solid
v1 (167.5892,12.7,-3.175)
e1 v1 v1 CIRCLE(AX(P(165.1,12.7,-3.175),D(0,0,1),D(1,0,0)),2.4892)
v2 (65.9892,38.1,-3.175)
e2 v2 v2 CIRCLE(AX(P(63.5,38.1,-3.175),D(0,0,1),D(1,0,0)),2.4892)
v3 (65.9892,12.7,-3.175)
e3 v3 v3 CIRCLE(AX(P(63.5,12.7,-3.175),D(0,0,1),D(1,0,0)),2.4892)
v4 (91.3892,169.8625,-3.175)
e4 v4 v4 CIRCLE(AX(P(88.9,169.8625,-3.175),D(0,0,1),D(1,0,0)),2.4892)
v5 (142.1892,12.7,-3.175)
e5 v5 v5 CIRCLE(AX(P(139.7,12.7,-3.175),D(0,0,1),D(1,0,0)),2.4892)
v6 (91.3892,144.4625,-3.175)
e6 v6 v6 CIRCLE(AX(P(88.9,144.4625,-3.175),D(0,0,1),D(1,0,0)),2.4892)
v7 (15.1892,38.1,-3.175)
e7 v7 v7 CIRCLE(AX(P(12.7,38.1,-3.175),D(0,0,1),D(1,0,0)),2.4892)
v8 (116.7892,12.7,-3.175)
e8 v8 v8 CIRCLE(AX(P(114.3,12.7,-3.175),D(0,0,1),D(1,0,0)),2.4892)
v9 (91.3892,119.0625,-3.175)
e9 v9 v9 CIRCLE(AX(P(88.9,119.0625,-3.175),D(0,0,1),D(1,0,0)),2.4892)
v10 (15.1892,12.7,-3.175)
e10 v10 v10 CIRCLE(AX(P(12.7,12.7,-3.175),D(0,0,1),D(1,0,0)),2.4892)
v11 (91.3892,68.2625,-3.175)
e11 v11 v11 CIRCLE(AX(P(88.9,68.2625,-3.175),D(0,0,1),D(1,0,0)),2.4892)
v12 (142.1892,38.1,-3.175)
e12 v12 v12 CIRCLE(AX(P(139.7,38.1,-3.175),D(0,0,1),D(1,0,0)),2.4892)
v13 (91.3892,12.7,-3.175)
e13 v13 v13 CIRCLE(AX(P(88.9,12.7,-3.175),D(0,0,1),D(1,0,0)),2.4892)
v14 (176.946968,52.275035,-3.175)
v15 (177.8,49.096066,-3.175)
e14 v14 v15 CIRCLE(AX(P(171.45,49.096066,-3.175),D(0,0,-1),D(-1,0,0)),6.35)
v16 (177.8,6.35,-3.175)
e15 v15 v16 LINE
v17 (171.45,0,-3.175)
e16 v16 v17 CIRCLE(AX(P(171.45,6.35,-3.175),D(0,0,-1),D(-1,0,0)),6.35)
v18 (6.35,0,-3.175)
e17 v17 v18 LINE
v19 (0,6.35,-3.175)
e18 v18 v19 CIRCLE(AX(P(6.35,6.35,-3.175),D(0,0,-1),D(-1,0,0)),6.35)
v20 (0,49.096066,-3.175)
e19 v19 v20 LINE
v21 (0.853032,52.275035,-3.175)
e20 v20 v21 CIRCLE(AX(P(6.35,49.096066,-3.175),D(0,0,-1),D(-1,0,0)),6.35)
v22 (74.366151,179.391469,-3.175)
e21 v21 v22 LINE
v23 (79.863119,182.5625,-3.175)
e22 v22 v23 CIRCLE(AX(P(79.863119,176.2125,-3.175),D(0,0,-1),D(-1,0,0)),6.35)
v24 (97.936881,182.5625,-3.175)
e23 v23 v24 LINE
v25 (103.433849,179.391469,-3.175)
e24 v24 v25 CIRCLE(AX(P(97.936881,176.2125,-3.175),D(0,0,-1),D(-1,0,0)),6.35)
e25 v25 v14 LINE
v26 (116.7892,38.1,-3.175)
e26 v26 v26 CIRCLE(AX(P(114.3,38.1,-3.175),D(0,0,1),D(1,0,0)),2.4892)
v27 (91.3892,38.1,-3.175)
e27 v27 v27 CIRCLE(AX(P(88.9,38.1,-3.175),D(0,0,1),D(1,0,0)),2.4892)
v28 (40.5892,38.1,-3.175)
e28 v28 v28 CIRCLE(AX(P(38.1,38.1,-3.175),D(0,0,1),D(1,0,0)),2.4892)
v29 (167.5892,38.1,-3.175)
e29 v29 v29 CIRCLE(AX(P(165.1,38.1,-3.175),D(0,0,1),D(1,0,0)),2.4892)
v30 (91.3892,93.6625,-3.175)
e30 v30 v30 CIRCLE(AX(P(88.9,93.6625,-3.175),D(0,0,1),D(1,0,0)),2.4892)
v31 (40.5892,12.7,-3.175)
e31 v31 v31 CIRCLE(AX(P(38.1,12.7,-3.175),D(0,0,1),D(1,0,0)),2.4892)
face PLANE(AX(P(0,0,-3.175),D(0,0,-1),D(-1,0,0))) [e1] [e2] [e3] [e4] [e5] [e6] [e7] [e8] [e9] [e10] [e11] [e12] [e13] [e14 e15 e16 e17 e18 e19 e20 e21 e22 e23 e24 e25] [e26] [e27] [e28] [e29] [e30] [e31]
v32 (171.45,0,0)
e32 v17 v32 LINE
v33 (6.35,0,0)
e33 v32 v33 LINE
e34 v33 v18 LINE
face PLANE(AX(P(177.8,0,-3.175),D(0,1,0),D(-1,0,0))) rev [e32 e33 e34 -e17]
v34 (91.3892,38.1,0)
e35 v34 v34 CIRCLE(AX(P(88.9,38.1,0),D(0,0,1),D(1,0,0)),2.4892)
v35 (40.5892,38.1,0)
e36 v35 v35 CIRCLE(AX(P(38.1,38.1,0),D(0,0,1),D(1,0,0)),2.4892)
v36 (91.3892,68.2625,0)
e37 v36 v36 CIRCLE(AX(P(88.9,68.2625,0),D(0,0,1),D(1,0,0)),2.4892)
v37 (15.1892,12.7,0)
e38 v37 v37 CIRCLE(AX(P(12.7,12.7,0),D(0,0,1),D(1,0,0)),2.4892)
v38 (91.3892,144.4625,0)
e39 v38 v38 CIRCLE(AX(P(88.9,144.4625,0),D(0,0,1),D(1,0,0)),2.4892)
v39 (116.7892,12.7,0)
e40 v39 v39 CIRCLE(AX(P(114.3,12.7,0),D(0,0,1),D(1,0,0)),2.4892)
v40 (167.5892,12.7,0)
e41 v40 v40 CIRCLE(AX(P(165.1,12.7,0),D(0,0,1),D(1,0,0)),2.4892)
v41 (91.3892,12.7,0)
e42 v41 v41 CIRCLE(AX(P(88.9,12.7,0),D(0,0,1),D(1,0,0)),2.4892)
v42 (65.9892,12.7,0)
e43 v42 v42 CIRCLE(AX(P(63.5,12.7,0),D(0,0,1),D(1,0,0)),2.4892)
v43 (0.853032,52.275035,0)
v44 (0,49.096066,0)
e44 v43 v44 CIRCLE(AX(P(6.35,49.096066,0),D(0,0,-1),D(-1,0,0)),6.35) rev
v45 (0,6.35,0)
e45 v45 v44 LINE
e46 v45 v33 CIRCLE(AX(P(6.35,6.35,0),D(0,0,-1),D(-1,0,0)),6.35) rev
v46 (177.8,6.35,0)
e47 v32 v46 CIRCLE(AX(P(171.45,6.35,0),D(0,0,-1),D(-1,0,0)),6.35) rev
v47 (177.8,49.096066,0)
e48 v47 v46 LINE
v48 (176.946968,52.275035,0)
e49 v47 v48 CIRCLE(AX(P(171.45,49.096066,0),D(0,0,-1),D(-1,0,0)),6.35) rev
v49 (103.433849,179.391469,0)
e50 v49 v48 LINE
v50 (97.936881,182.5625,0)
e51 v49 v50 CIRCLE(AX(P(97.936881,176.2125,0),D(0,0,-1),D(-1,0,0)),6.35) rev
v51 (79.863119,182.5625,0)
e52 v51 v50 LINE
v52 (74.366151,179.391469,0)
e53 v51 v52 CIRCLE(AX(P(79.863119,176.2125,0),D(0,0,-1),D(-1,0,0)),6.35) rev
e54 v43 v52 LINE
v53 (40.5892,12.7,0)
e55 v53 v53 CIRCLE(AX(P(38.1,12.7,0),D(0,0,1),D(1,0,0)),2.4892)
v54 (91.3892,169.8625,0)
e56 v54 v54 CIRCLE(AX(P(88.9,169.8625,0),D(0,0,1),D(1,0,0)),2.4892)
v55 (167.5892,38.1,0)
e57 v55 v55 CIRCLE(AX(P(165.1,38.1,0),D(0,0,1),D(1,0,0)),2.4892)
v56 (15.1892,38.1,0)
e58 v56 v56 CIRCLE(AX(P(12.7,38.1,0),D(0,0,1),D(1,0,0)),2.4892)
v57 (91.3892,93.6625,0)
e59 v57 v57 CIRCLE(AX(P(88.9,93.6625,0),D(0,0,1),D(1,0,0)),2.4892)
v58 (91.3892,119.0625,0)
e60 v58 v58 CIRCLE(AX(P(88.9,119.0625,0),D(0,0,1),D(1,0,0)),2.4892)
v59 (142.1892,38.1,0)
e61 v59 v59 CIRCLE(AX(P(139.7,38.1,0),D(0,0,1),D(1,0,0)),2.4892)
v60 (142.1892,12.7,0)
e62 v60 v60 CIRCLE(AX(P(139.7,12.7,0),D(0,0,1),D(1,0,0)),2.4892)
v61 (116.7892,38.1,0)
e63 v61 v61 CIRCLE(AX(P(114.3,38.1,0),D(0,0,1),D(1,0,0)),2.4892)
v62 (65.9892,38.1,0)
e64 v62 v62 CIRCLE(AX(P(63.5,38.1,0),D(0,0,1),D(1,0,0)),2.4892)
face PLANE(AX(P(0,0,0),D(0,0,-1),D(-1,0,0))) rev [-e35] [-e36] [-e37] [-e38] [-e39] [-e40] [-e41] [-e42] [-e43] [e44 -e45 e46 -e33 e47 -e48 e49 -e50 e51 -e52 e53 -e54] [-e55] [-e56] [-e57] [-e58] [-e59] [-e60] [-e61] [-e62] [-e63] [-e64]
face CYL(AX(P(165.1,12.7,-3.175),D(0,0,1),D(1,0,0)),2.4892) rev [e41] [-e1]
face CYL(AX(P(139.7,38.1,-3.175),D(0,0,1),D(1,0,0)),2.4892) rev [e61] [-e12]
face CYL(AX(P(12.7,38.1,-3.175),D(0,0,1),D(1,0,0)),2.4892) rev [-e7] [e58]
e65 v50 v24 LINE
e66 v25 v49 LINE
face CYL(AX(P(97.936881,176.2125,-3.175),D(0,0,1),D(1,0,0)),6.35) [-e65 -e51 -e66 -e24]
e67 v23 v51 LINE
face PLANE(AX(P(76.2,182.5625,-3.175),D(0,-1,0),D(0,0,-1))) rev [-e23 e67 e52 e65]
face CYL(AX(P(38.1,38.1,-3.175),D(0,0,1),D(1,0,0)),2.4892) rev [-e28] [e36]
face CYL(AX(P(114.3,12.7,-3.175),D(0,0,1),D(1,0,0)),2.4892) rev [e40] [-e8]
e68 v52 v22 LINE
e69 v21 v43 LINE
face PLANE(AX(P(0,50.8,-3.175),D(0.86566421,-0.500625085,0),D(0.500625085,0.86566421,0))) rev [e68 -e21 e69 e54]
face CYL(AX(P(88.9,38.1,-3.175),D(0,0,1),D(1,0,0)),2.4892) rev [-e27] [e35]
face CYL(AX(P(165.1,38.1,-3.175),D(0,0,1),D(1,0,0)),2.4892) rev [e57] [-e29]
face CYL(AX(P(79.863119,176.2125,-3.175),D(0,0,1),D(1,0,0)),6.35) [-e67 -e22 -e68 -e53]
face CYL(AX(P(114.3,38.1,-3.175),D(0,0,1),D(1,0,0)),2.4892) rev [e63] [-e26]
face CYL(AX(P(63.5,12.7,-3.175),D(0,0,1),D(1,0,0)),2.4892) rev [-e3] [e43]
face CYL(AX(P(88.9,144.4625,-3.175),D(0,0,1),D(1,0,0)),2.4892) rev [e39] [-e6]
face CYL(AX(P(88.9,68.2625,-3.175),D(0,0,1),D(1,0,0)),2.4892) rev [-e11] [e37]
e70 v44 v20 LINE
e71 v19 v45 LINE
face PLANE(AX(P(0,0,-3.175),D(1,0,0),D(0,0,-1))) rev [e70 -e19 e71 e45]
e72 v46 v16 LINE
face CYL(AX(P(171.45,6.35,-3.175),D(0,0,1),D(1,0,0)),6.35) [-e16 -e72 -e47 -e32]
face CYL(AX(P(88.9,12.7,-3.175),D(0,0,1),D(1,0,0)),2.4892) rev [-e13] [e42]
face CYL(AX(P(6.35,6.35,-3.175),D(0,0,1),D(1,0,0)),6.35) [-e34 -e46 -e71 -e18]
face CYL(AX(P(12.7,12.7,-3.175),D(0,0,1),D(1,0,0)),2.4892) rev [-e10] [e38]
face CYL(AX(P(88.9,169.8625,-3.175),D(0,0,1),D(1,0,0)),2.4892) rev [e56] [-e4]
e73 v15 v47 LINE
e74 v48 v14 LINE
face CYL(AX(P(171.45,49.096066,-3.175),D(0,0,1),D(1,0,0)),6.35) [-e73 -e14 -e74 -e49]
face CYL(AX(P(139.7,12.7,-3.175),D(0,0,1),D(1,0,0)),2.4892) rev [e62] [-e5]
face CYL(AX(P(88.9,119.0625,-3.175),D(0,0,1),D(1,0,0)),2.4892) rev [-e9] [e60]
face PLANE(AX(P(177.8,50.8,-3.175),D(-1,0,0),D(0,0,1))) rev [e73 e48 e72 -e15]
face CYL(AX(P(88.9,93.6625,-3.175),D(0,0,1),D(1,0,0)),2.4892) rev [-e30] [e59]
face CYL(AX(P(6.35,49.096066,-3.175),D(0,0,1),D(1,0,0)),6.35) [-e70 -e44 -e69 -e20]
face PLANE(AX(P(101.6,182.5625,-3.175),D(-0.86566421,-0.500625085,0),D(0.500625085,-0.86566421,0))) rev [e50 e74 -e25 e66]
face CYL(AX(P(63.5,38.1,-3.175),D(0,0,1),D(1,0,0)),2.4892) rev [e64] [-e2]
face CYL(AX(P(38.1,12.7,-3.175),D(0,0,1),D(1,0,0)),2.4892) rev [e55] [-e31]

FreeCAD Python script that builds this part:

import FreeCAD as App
import Part
import Sketcher
Q = App.Units.Quantity


def edges_at(feature, points):
    """Names of the edges that pass closest to the given points."""
    edges = feature.Shape.Edges
    near = lambda p: min(range(len(edges)), key=lambda i: edges[i].distToShape(Part.Vertex(*p))[0])
    return sorted({f"Edge{near(p) + 1}" for p in points})


def add_polygon(sketch, points):
    """Adds a closed chain of lines whose ends are joined by coincident constraints."""
    first, n = sketch.GeometryCount, len(points)
    for a, b in zip(points, points[1:] + points[:1]):
        sketch.addGeometry(Part.LineSegment(App.Vector(*a, 0), App.Vector(*b, 0)), False)
    for i in range(n):
        sketch.addConstraint(Sketcher.Constraint("Coincident", first + i, 2, first + (i + 1) % n, 1))

doc = App.newDocument("Part")
body = doc.addObject("PartDesign::Body", "Body")

# Sketch on XY plane
sketch1 = body.newObject("Sketcher::SketchObject", "Sketch")
sketch1.AttachmentSupport = (doc.getObject("XY_Plane"), [""])
sketch1.MapMode = "FlatFace"
add_polygon(sketch1, [(0, 51), (0, 0), (178, 0), (178, 51), (102, 183), (76, 183)])  # lines 0-5
sketch1.addConstraint([
    Sketcher.Constraint("Vertical", 0),
    Sketcher.Constraint("Horizontal", 1),
    Sketcher.Constraint("Vertical", 2),
    Sketcher.Constraint("Horizontal", 4),
    Sketcher.Constraint("Coincident", 0, 2, -1, 1),
    Sketcher.Constraint("Horizontal", 2, 2, 5, 2),
    Sketcher.Constraint("Equal", 3, 5),
    Sketcher.Constraint("DistanceX", 1, 1, 1, 2, Q("7 in")),
    Sketcher.Constraint("DistanceX", 4, 2, 4, 1, Q("1 in")),
    Sketcher.Constraint("DistanceY", 0, 2, 0, 1, Q("2 in")),
    Sketcher.Constraint("DistanceY", -1, 1, 3, 2, Q("7.1875 in")),
])
pad1 = body.newObject("PartDesign::Pad", "Pad")
pad1.Profile = sketch1
pad1.Length = Q("0.125 in")
pad1.Reversed = True

# Sketch on XY plane
sketch2 = body.newObject("Sketcher::SketchObject", "Sketch001")
sketch2.AttachmentSupport = (doc.getObject("XY_Plane"), [""])
sketch2.MapMode = "FlatFace"
sketch2.addGeometry([
    Part.Circle(App.Vector(12.7, 12.7, 0), App.Vector(0, 0, 1), 2.5),  # 0
    Part.Circle(App.Vector(38.1, 12.7, 0), App.Vector(0, 0, 1), 2.5),  # 1
    Part.Circle(App.Vector(63.5, 12.7, 0), App.Vector(0, 0, 1), 2.5),  # 2
    Part.Circle(App.Vector(88.9, 12.7, 0), App.Vector(0, 0, 1), 2.5),  # 3
    Part.Circle(App.Vector(114.3, 12.7, 0), App.Vector(0, 0, 1), 2.5),  # 4
    Part.Circle(App.Vector(139.7, 12.7, 0), App.Vector(0, 0, 1), 2.5),  # 5
    Part.Circle(App.Vector(165.1, 12.7, 0), App.Vector(0, 0, 1), 2.5),  # 6
    Part.Circle(App.Vector(38.1, 38.1, 0), App.Vector(0, 0, 1), 2.5),  # 7
    Part.Circle(App.Vector(63.5, 38.1, 0), App.Vector(0, 0, 1), 2.5),  # 8
    Part.Circle(App.Vector(88.9, 38.1, 0), App.Vector(0, 0, 1), 2.5),  # 9
    Part.Circle(App.Vector(114.3, 38.1, 0), App.Vector(0, 0, 1), 2.5),  # 10
    Part.Circle(App.Vector(139.7, 38.1, 0), App.Vector(0, 0, 1), 2.5),  # 11
    Part.Circle(App.Vector(165.1, 38.1, 0), App.Vector(0, 0, 1), 2.5),  # 12
    Part.Circle(App.Vector(12.7, 38.1, 0), App.Vector(0, 0, 1), 2.5),  # 13
    Part.Circle(App.Vector(88.9, 169.9, 0), App.Vector(0, 0, 1), 2.5),  # 14
    Part.Circle(App.Vector(88.9, 144.5, 0), App.Vector(0, 0, 1), 2.5),  # 15
    Part.Circle(App.Vector(88.9, 119.1, 0), App.Vector(0, 0, 1), 2.5),  # 16
    Part.Circle(App.Vector(88.9, 93.7, 0), App.Vector(0, 0, 1), 2.5),  # 17
    Part.Circle(App.Vector(88.9, 68.3, 0), App.Vector(0, 0, 1), 2.5),  # 18
], False)
sketch2.addConstraint([
    Sketcher.Constraint("Equal", 0, 1),
    Sketcher.Constraint("Equal", 1, 2),
    Sketcher.Constraint("Equal", 2, 3),
    Sketcher.Constraint("Equal", 3, 4),
    Sketcher.Constraint("Equal", 4, 5),
    Sketcher.Constraint("Equal", 5, 6),
    Sketcher.Constraint("Equal", 6, 7),
    Sketcher.Constraint("Equal", 7, 8),
    Sketcher.Constraint("Equal", 8, 9),
    Sketcher.Constraint("Equal", 9, 10),
    Sketcher.Constraint("Equal", 10, 11),
    Sketcher.Constraint("Equal", 11, 12),
    Sketcher.Constraint("Equal", 12, 13),
    Sketcher.Constraint("Equal", 13, 14),
    Sketcher.Constraint("Equal", 14, 15),
    Sketcher.Constraint("Equal", 15, 16),
    Sketcher.Constraint("Equal", 16, 17),
    Sketcher.Constraint("Equal", 17, 18),
    Sketcher.Constraint("Horizontal", 0, 3, 1, 3),
    Sketcher.Constraint("Horizontal", 1, 3, 2, 3),
    Sketcher.Constraint("Horizontal", 2, 3, 3, 3),
    Sketcher.Constraint("Horizontal", 3, 3, 4, 3),
    Sketcher.Constraint("Horizontal", 4, 3, 5, 3),
    Sketcher.Constraint("Horizontal", 5, 3, 6, 3),
    Sketcher.Constraint("Horizontal", 7, 3, 8, 3),
    Sketcher.Constraint("Horizontal", 8, 3, 9, 3),
    Sketcher.Constraint("Horizontal", 9, 3, 10, 3),
    Sketcher.Constraint("Horizontal", 10, 3, 11, 3),
    Sketcher.Constraint("Horizontal", 11, 3, 12, 3),
    Sketcher.Constraint("Horizontal", 12, 3, 13, 3),
    Sketcher.Constraint("Vertical", 1, 3, 7, 3),
    Sketcher.Constraint("Vertical", 2, 3, 8, 3),
    Sketcher.Constraint("Vertical", 3, 3, 9, 3),
    Sketcher.Constraint("Vertical", 4, 3, 10, 3),
    Sketcher.Constraint("Vertical", 5, 3, 11, 3),
    Sketcher.Constraint("Vertical", 6, 3, 12, 3),
    Sketcher.Constraint("Vertical", 0, 3, 13, 3),
    Sketcher.Constraint("Vertical", 9, 3, 14, 3),
    Sketcher.Constraint("Vertical", 14, 3, 15, 3),
    Sketcher.Constraint("Vertical", 15, 3, 16, 3),
    Sketcher.Constraint("Vertical", 16, 3, 17, 3),
    Sketcher.Constraint("Vertical", 17, 3, 18, 3),
    Sketcher.Constraint("Diameter", 0, Q("0.196 in")),
    Sketcher.Constraint("DistanceX", 0, 3, 1, 3, Q("1 in")),
    Sketcher.Constraint("DistanceX", 1, 3, 2, 3, Q("1 in")),
    Sketcher.Constraint("DistanceX", 2, 3, 3, 3, Q("1 in")),
    Sketcher.Constraint("DistanceX", 3, 3, 4, 3, Q("1 in")),
    Sketcher.Constraint("DistanceX", 4, 3, 5, 3, Q("1 in")),
    Sketcher.Constraint("DistanceX", 5, 3, 6, 3, Q("1 in")),
    Sketcher.Constraint("DistanceY", 1, 3, 7, 3, Q("1 in")),
    Sketcher.Constraint("DistanceY", 15, 3, 14, 3, Q("1 in")),
    Sketcher.Constraint("DistanceY", 16, 3, 15, 3, Q("1 in")),
    Sketcher.Constraint("DistanceY", 17, 3, 16, 3, Q("1 in")),
    Sketcher.Constraint("DistanceY", 18, 3, 17, 3, Q("1 in")),
    Sketcher.Constraint("DistanceX", -1, 1, 0, 3, Q("0.5 in")),
    Sketcher.Constraint("DistanceY", -1, 1, 0, 3, Q("0.5 in")),
    Sketcher.Constraint("DistanceY", -1, 1, 14, 3, Q("6.6875 in")),
])
pocket1 = body.newObject("PartDesign::Pocket", "Pocket")
pocket1.Profile = sketch2
pocket1.Type = "ThroughAll"
doc.recompute()

fillet = body.newObject("PartDesign::Fillet", "Fillet")
fillet.Base = (pocket1, edges_at(pocket1, [
    (0, 0, -1.587),
    (177.8, 0, -1.587),
    (177.8, 50.8, -1.587),
    (101.6, 182.562, -1.587),
    (76.2, 182.562, -1.587),
    (0, 50.8, -1.587),
]))
fillet.Radius = Q("0.25 in")

doc.recompute()
